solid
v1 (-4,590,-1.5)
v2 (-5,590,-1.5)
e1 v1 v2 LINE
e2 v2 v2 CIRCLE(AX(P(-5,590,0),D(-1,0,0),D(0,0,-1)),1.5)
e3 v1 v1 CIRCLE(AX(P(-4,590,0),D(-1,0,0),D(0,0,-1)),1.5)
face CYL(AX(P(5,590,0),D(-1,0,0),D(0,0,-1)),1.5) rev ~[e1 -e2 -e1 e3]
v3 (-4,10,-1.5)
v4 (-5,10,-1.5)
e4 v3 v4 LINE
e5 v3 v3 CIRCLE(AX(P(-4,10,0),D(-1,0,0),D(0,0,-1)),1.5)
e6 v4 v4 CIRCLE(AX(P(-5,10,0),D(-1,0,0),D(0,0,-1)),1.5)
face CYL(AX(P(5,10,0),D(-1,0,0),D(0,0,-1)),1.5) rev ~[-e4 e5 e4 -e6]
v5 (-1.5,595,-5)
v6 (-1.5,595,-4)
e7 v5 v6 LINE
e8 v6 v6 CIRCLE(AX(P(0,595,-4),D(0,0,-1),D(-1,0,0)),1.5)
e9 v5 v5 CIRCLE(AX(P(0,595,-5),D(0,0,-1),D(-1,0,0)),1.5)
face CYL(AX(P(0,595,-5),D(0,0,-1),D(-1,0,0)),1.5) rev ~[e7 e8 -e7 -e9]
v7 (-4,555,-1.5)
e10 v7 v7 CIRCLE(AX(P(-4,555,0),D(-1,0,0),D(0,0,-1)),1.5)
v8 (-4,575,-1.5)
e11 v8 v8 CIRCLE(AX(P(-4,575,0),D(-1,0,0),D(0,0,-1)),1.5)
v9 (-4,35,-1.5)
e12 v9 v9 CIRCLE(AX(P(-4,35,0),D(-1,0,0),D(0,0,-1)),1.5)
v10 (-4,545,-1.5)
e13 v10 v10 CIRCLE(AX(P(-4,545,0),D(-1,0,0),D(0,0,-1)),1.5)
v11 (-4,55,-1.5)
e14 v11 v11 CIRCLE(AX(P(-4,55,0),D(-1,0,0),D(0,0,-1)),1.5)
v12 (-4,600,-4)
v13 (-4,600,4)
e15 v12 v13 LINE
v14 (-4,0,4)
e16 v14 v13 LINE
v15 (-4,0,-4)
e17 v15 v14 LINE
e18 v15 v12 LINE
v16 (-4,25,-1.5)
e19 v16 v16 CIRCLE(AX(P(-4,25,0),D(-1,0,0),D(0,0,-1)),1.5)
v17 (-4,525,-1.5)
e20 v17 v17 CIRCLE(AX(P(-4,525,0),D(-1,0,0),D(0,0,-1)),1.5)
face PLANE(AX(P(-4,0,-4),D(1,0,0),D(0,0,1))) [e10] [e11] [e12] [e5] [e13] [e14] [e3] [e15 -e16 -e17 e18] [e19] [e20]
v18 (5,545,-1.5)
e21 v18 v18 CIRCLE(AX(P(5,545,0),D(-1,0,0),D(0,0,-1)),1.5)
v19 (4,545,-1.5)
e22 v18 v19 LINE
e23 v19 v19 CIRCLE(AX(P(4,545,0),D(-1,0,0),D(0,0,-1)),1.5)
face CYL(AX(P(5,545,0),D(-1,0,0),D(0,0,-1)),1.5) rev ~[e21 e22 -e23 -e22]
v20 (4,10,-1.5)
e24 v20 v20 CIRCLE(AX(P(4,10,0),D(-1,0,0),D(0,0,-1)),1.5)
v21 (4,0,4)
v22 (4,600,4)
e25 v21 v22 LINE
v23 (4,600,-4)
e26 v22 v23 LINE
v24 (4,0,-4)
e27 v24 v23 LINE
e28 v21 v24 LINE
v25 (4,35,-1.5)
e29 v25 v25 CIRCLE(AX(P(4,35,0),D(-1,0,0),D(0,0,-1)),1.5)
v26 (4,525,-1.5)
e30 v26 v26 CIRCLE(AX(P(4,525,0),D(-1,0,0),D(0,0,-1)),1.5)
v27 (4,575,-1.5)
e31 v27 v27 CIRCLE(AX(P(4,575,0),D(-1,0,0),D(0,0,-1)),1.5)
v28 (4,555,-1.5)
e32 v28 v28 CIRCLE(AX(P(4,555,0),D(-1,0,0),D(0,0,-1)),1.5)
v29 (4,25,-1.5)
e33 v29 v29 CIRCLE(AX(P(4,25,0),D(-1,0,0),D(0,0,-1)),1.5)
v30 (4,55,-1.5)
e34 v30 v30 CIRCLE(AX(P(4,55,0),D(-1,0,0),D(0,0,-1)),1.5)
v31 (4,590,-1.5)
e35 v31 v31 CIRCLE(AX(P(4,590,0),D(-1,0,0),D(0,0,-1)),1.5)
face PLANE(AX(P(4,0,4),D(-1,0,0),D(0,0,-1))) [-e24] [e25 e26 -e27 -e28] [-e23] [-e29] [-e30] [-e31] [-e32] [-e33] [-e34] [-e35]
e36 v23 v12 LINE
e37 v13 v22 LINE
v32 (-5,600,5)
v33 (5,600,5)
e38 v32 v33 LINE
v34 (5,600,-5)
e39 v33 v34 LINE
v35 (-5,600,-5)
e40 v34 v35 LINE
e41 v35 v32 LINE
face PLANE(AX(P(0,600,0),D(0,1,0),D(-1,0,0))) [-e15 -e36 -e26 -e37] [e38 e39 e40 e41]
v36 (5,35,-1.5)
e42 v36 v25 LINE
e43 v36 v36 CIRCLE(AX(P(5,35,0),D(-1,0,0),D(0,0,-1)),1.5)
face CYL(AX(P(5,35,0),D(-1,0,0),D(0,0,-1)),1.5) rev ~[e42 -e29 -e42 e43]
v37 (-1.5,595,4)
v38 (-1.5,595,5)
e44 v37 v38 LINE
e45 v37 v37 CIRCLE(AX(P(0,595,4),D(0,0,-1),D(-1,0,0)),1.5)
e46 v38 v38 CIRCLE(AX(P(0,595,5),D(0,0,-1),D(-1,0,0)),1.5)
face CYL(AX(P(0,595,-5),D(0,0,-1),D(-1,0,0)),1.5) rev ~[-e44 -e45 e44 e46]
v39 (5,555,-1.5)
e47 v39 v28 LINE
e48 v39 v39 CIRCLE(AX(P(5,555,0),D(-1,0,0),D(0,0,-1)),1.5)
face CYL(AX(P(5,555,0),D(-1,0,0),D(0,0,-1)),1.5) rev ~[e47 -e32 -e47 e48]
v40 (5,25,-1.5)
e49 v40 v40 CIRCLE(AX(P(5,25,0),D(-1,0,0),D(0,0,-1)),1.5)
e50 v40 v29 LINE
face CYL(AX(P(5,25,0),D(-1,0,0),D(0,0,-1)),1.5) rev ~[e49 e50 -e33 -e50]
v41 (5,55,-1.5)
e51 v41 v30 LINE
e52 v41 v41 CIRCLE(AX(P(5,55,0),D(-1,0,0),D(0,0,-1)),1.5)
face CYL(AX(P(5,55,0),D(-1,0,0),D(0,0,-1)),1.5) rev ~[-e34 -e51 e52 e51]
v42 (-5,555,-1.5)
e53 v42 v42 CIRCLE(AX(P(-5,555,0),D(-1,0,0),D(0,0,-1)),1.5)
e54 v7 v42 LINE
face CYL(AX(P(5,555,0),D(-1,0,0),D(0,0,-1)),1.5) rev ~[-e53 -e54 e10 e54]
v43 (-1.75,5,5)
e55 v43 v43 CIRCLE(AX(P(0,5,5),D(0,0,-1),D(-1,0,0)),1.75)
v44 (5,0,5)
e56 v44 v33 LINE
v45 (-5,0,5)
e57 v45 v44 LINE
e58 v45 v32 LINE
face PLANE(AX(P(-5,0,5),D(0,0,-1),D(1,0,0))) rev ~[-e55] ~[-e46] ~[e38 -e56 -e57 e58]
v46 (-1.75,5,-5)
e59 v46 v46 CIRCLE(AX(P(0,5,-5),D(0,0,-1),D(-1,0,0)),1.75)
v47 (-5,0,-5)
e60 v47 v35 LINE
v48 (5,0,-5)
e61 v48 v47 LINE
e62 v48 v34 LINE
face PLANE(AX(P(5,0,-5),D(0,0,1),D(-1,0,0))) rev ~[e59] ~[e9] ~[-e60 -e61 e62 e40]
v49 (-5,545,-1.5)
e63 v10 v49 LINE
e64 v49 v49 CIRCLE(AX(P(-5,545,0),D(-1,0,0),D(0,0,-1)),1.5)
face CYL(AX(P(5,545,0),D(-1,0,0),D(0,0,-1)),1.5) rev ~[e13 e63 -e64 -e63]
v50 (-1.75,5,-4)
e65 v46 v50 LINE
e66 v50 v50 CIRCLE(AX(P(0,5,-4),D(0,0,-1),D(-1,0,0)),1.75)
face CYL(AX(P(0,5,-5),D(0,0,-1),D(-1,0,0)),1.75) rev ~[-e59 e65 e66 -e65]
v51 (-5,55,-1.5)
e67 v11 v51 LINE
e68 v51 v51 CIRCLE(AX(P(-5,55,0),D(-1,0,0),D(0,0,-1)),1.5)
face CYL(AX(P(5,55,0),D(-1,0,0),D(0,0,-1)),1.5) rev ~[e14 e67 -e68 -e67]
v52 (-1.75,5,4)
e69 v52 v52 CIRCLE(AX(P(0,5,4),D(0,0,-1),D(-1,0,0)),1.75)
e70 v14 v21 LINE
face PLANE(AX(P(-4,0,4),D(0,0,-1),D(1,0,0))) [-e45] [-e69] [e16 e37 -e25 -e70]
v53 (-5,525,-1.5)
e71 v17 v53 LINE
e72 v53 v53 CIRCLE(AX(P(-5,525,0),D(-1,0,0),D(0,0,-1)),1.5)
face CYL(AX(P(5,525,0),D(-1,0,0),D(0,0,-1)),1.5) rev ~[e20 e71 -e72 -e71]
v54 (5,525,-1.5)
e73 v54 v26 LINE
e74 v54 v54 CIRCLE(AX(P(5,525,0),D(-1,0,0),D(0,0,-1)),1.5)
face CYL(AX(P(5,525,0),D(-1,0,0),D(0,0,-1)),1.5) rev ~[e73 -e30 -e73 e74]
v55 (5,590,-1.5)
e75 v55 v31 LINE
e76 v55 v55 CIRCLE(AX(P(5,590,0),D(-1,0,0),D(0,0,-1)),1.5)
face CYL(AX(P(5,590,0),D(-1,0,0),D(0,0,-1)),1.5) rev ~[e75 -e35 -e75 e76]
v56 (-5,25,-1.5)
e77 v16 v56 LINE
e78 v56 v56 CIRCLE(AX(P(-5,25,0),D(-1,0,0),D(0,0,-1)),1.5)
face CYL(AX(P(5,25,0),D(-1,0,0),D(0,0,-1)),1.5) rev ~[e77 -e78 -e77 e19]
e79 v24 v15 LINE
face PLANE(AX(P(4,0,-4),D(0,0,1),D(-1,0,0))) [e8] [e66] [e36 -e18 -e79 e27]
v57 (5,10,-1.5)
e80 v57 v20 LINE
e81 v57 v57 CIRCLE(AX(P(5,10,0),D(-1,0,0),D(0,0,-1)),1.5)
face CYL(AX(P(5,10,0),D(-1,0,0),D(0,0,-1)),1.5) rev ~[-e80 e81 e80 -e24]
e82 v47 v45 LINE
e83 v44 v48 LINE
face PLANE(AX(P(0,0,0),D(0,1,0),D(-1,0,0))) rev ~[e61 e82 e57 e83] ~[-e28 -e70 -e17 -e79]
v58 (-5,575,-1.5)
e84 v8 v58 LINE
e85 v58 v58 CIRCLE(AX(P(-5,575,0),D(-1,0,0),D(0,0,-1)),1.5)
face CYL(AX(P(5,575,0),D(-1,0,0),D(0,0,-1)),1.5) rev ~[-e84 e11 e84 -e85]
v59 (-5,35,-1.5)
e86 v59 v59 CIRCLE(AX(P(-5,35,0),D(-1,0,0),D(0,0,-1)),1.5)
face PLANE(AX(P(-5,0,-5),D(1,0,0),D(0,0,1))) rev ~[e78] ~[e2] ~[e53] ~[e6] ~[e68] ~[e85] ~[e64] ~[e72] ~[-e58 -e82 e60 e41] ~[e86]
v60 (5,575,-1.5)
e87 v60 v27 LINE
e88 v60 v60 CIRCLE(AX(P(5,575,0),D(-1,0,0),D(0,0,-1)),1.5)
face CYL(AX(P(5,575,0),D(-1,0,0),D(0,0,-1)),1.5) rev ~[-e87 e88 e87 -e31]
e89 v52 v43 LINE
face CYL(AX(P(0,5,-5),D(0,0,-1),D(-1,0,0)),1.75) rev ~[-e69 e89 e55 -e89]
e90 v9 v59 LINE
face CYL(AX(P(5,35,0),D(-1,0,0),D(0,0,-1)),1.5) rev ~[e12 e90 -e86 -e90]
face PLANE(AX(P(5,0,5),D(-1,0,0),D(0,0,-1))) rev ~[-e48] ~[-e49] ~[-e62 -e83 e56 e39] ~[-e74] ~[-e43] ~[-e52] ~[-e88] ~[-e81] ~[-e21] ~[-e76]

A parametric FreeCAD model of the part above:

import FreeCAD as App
import Part
import Sketcher

doc = App.newDocument("Part")
body = doc.addObject("PartDesign::Body", "Body")

sketch1 = body.newObject("Sketcher::SketchObject", "Sketch")
sketch1.AttachmentSupport = (doc.getObject("XZ_Plane"), [""])
sketch1.MapMode = "FlatFace"
sketch1.addGeometry([
    Part.LineSegment(App.Vector(5, 5, 0), App.Vector(5, -5, 0)),
    Part.LineSegment(App.Vector(5, -5, 0), App.Vector(-5, -5, 0)),
    Part.LineSegment(App.Vector(-5, -5, 0), App.Vector(-5, 5, 0)),
    Part.LineSegment(App.Vector(-5, 5, 0), App.Vector(5, 5, 0)),
    Part.LineSegment(App.Vector(-4, -4, 0), App.Vector(4, -4, 0)),
    Part.LineSegment(App.Vector(4, -4, 0), App.Vector(4, 4, 0)),
    Part.LineSegment(App.Vector(4, 4, 0), App.Vector(-4, 4, 0)),
    Part.LineSegment(App.Vector(-4, 4, 0), App.Vector(-4, -4, 0)),
], False)
sketch1.addConstraint([
    Sketcher.Constraint("Coincident", 0, 2, 1, 1),
    Sketcher.Constraint("Coincident", 1, 2, 2, 1),
    Sketcher.Constraint("Coincident", 2, 2, 3, 1),
    Sketcher.Constraint("Coincident", 3, 2, 0, 1),
    Sketcher.Constraint("Coincident", 4, 2, 5, 1),
    Sketcher.Constraint("Coincident", 5, 2, 6, 1),
    Sketcher.Constraint("Coincident", 6, 2, 7, 1),
    Sketcher.Constraint("Coincident", 7, 2, 4, 1),
    Sketcher.Constraint("Vertical", 0),
    Sketcher.Constraint("Horizontal", 1),
    Sketcher.Constraint("Vertical", 2),
    Sketcher.Constraint("Horizontal", 3),
    Sketcher.Constraint("Horizontal", 4),
    Sketcher.Constraint("Vertical", 5),
    Sketcher.Constraint("Horizontal", 6),
    Sketcher.Constraint("Vertical", 7),
    Sketcher.Constraint("Symmetric", 0, 2, 2, 2, -1, 1),
    Sketcher.Constraint("Symmetric", 4, 2, 6, 2, -1, 1),
    Sketcher.Constraint("Equal", 3, 0),
    Sketcher.Constraint("Equal", 6, 5),
    Sketcher.Constraint("DistanceX", 1, 2, 1, 1, 10.0),
    Sketcher.Constraint("DistanceX", 4, 1, 4, 2, 8.0),
])
pad1 = body.newObject("PartDesign::Pad", "Pad")
pad1.Profile = sketch1
pad1.Length = 600
pad1.Reversed = True

sketch2 = body.newObject("Sketcher::SketchObject", "Sketch001")
sketch2.AttachmentSupport = (doc.getObject("YZ_Plane"), [""])
sketch2.MapMode = "FlatFace"
sketch2.AttachmentOffset = App.Placement(App.Vector(0, 0, 5), App.Rotation())
sketch2.addGeometry([
    Part.Circle(App.Vector(545, 0, 0), App.Vector(0, 0, 1), 1.5),
    Part.Circle(App.Vector(525, 0, 0), App.Vector(0, 0, 1), 1.5),
    Part.Circle(App.Vector(590, 0, 0), App.Vector(0, 0, 1), 1.5),
    Part.Circle(App.Vector(555, 0, 0), App.Vector(0, 0, 1), 1.5),
    Part.Circle(App.Vector(575, 0, 0), App.Vector(0, 0, 1), 1.5),
    Part.Circle(App.Vector(10, 0, 0), App.Vector(0, 0, 1), 1.5),
    Part.Circle(App.Vector(25, 0, 0), App.Vector(0, 0, 1), 1.5),
    Part.Circle(App.Vector(35, 0, 0), App.Vector(0, 0, 1), 1.5),
    Part.Circle(App.Vector(55, 0, 0), App.Vector(0, 0, 1), 1.5),
], False)
sketch2.addConstraint([
    Sketcher.Constraint("Equal", 0, 1),
    Sketcher.Constraint("Equal", 1, 2),
    Sketcher.Constraint("Equal", 2, 3),
    Sketcher.Constraint("Equal", 3, 4),
    Sketcher.Constraint("Equal", 4, 5),
    Sketcher.Constraint("Equal", 5, 6),
    Sketcher.Constraint("Equal", 6, 7),
    Sketcher.Constraint("Equal", 7, 8),
    Sketcher.Constraint("PointOnObject", 0, 3, -1),
    Sketcher.Constraint("PointOnObject", 1, 3, -1),
    Sketcher.Constraint("PointOnObject", 2, 3, -1),
    Sketcher.Constraint("PointOnObject", 3, 3, -1),
    Sketcher.Constraint("PointOnObject", 4, 3, -1),
    Sketcher.Constraint("PointOnObject", 5, 3, -1),
    Sketcher.Constraint("PointOnObject", 6, 3, -1),
    Sketcher.Constraint("PointOnObject", 7, 3, -1),
    Sketcher.Constraint("PointOnObject", 8, 3, -1),
    Sketcher.Constraint("Diameter", 0, 3.0),
    Sketcher.Constraint("DistanceX", -1, 1, 0, 3, 545.0),
    Sketcher.Constraint("DistanceX", -1, 1, 1, 3, 525.0),
    Sketcher.Constraint("DistanceX", -1, 1, 2, 3, 590.0),
    Sketcher.Constraint("DistanceX", -1, 1, 3, 3, 555.0),
    Sketcher.Constraint("DistanceX", -1, 1, 4, 3, 575.0),
    Sketcher.Constraint("DistanceX", -1, 1, 5, 3, 10.0),
    Sketcher.Constraint("DistanceX", -1, 1, 6, 3, 25.0),
    Sketcher.Constraint("DistanceX", -1, 1, 7, 3, 35.0),
    Sketcher.Constraint("DistanceX", -1, 1, 8, 3, 55.0),
])
doc.recompute()
hole = body.newObject("PartDesign::Hole", "Hole")
hole.Profile = sketch2
hole.ThreadType = "None"
hole.Diameter = 3
hole.DepthType = "Dimension"
hole.Depth = 80.45
hole.DrillPoint = "Flat"

sketch3 = body.newObject("Sketcher::SketchObject", "Sketch002")
sketch3.AttachmentSupport = (doc.getObject("XY_Plane"), [""])
sketch3.MapMode = "FlatFace"
sketch3.AttachmentOffset = App.Placement(App.Vector(0, 0, -5), App.Rotation())
sketch3.addGeometry([
    Part.Circle(App.Vector(0, 595, 0), App.Vector(0, 0, 1), 1.5),
    Part.Circle(App.Vector(0, 5, 0), App.Vector(0, 0, 1), 1.8),
], False)
sketch3.addConstraint([
    Sketcher.Constraint("PointOnObject", 0, 3, -2),
    Sketcher.Constraint("PointOnObject", 1, 3, -2),
    Sketcher.Constraint("Diameter", 0, 3.0),
    Sketcher.Constraint("Diameter", 1, 3.5),
    Sketcher.Constraint("DistanceY", -1, 1, 1, 3, 5.0),
    Sketcher.Constraint("DistanceY", -1, 1, 0, 3, 595.0),
])
pocket1 = body.newObject("PartDesign::Pocket", "Pocket")
pocket1.Profile = sketch3
pocket1.Length = 600
pocket1.Reversed = True

doc.recompute()
